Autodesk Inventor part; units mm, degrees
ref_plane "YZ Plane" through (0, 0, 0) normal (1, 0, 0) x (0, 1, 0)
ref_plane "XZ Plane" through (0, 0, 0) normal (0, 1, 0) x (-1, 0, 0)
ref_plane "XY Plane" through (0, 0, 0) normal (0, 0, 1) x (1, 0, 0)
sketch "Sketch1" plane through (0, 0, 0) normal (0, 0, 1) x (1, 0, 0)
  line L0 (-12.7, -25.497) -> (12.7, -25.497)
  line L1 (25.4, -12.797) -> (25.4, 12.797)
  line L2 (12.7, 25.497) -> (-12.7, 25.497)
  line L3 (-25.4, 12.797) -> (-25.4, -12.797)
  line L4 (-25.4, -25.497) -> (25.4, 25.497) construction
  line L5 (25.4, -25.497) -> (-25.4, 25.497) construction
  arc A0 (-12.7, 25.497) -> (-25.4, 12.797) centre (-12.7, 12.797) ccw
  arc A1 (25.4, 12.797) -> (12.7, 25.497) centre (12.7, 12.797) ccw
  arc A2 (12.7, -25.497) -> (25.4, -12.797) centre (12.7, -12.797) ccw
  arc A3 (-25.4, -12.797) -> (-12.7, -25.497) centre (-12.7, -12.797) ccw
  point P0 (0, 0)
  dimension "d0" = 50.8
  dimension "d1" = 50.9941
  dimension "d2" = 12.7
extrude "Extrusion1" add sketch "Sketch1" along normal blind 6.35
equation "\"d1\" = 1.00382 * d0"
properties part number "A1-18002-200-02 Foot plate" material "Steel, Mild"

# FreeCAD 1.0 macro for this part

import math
import FreeCAD as App
import Part
import Sketcher

V = App.Vector
Q = App.Units.Quantity

doc = App.newDocument("Part")
body = doc.addObject("PartDesign::Body", "Body")

sketch1 = body.newObject("Sketcher::SketchObject", "Sketch")
sketch1.AttachmentSupport = (doc.getObject("XY_Plane"), [""])
sketch1.MapMode = "FlatFace"
sketch1.addGeometry([
    Part.ArcOfCircle(Part.Circle(V(-12.7, -12.797, 0), V(0, 0, 1), 12.7), math.radians(180), math.radians(270)),
    Part.LineSegment(V(-12.7, -25.497, 0), V(12.7, -25.497, 0)),
    Part.ArcOfCircle(Part.Circle(V(12.7, -12.797, 0), V(0, 0, 1), 12.7), math.radians(-90), math.radians(0)),
    Part.LineSegment(V(25.4, -12.797, 0), V(25.4, 12.797, 0)),
    Part.ArcOfCircle(Part.Circle(V(12.7, 12.797, 0), V(0, 0, 1), 12.7), math.radians(0), math.radians(90)),
    Part.LineSegment(V(12.7, 25.497, 0), V(-12.7, 25.497, 0)),
    Part.ArcOfCircle(Part.Circle(V(-12.7, 12.797, 0), V(0, 0, 1), 12.7), math.radians(90), math.radians(180)),
    Part.LineSegment(V(-25.4, 12.797, 0), V(-25.4, -12.797, 0)),
], False)
sketch1.addConstraint([
    Sketcher.Constraint("Tangent", 0, 2, 1, 1),
    Sketcher.Constraint("Tangent", 1, 2, 2, 1),
    Sketcher.Constraint("Tangent", 2, 2, 3, 1),
    Sketcher.Constraint("Tangent", 3, 2, 4, 1),
    Sketcher.Constraint("Tangent", 4, 2, 5, 1),
    Sketcher.Constraint("Tangent", 5, 2, 6, 1),
    Sketcher.Constraint("Tangent", 6, 2, 7, 1),
    Sketcher.Constraint("Tangent", 7, 2, 0, 1),
    Sketcher.Constraint("Horizontal", 1),
    Sketcher.Constraint("Vertical", 3),
    Sketcher.Constraint("Horizontal", 5),
    Sketcher.Constraint("Vertical", 7),
    Sketcher.Constraint("Equal", 0, 2),
    Sketcher.Constraint("Equal", 2, 4),
    Sketcher.Constraint("Equal", 4, 6),
    Sketcher.Constraint("Symmetric", 0, 3, 4, 3, -1, 1),
    Sketcher.Constraint("Radius", 0, Q("0.5 in")),
    Sketcher.Constraint("DistanceX", 0, 3, -1, 1, Q("0.5 in")),
    Sketcher.Constraint("DistanceY", 3, 1, 3, 2, 25.594),
])
pad1 = body.newObject("PartDesign::Pad", "Pad")
pad1.Profile = sketch1
pad1.Length = Q("0.25 in")

doc.recompute()
